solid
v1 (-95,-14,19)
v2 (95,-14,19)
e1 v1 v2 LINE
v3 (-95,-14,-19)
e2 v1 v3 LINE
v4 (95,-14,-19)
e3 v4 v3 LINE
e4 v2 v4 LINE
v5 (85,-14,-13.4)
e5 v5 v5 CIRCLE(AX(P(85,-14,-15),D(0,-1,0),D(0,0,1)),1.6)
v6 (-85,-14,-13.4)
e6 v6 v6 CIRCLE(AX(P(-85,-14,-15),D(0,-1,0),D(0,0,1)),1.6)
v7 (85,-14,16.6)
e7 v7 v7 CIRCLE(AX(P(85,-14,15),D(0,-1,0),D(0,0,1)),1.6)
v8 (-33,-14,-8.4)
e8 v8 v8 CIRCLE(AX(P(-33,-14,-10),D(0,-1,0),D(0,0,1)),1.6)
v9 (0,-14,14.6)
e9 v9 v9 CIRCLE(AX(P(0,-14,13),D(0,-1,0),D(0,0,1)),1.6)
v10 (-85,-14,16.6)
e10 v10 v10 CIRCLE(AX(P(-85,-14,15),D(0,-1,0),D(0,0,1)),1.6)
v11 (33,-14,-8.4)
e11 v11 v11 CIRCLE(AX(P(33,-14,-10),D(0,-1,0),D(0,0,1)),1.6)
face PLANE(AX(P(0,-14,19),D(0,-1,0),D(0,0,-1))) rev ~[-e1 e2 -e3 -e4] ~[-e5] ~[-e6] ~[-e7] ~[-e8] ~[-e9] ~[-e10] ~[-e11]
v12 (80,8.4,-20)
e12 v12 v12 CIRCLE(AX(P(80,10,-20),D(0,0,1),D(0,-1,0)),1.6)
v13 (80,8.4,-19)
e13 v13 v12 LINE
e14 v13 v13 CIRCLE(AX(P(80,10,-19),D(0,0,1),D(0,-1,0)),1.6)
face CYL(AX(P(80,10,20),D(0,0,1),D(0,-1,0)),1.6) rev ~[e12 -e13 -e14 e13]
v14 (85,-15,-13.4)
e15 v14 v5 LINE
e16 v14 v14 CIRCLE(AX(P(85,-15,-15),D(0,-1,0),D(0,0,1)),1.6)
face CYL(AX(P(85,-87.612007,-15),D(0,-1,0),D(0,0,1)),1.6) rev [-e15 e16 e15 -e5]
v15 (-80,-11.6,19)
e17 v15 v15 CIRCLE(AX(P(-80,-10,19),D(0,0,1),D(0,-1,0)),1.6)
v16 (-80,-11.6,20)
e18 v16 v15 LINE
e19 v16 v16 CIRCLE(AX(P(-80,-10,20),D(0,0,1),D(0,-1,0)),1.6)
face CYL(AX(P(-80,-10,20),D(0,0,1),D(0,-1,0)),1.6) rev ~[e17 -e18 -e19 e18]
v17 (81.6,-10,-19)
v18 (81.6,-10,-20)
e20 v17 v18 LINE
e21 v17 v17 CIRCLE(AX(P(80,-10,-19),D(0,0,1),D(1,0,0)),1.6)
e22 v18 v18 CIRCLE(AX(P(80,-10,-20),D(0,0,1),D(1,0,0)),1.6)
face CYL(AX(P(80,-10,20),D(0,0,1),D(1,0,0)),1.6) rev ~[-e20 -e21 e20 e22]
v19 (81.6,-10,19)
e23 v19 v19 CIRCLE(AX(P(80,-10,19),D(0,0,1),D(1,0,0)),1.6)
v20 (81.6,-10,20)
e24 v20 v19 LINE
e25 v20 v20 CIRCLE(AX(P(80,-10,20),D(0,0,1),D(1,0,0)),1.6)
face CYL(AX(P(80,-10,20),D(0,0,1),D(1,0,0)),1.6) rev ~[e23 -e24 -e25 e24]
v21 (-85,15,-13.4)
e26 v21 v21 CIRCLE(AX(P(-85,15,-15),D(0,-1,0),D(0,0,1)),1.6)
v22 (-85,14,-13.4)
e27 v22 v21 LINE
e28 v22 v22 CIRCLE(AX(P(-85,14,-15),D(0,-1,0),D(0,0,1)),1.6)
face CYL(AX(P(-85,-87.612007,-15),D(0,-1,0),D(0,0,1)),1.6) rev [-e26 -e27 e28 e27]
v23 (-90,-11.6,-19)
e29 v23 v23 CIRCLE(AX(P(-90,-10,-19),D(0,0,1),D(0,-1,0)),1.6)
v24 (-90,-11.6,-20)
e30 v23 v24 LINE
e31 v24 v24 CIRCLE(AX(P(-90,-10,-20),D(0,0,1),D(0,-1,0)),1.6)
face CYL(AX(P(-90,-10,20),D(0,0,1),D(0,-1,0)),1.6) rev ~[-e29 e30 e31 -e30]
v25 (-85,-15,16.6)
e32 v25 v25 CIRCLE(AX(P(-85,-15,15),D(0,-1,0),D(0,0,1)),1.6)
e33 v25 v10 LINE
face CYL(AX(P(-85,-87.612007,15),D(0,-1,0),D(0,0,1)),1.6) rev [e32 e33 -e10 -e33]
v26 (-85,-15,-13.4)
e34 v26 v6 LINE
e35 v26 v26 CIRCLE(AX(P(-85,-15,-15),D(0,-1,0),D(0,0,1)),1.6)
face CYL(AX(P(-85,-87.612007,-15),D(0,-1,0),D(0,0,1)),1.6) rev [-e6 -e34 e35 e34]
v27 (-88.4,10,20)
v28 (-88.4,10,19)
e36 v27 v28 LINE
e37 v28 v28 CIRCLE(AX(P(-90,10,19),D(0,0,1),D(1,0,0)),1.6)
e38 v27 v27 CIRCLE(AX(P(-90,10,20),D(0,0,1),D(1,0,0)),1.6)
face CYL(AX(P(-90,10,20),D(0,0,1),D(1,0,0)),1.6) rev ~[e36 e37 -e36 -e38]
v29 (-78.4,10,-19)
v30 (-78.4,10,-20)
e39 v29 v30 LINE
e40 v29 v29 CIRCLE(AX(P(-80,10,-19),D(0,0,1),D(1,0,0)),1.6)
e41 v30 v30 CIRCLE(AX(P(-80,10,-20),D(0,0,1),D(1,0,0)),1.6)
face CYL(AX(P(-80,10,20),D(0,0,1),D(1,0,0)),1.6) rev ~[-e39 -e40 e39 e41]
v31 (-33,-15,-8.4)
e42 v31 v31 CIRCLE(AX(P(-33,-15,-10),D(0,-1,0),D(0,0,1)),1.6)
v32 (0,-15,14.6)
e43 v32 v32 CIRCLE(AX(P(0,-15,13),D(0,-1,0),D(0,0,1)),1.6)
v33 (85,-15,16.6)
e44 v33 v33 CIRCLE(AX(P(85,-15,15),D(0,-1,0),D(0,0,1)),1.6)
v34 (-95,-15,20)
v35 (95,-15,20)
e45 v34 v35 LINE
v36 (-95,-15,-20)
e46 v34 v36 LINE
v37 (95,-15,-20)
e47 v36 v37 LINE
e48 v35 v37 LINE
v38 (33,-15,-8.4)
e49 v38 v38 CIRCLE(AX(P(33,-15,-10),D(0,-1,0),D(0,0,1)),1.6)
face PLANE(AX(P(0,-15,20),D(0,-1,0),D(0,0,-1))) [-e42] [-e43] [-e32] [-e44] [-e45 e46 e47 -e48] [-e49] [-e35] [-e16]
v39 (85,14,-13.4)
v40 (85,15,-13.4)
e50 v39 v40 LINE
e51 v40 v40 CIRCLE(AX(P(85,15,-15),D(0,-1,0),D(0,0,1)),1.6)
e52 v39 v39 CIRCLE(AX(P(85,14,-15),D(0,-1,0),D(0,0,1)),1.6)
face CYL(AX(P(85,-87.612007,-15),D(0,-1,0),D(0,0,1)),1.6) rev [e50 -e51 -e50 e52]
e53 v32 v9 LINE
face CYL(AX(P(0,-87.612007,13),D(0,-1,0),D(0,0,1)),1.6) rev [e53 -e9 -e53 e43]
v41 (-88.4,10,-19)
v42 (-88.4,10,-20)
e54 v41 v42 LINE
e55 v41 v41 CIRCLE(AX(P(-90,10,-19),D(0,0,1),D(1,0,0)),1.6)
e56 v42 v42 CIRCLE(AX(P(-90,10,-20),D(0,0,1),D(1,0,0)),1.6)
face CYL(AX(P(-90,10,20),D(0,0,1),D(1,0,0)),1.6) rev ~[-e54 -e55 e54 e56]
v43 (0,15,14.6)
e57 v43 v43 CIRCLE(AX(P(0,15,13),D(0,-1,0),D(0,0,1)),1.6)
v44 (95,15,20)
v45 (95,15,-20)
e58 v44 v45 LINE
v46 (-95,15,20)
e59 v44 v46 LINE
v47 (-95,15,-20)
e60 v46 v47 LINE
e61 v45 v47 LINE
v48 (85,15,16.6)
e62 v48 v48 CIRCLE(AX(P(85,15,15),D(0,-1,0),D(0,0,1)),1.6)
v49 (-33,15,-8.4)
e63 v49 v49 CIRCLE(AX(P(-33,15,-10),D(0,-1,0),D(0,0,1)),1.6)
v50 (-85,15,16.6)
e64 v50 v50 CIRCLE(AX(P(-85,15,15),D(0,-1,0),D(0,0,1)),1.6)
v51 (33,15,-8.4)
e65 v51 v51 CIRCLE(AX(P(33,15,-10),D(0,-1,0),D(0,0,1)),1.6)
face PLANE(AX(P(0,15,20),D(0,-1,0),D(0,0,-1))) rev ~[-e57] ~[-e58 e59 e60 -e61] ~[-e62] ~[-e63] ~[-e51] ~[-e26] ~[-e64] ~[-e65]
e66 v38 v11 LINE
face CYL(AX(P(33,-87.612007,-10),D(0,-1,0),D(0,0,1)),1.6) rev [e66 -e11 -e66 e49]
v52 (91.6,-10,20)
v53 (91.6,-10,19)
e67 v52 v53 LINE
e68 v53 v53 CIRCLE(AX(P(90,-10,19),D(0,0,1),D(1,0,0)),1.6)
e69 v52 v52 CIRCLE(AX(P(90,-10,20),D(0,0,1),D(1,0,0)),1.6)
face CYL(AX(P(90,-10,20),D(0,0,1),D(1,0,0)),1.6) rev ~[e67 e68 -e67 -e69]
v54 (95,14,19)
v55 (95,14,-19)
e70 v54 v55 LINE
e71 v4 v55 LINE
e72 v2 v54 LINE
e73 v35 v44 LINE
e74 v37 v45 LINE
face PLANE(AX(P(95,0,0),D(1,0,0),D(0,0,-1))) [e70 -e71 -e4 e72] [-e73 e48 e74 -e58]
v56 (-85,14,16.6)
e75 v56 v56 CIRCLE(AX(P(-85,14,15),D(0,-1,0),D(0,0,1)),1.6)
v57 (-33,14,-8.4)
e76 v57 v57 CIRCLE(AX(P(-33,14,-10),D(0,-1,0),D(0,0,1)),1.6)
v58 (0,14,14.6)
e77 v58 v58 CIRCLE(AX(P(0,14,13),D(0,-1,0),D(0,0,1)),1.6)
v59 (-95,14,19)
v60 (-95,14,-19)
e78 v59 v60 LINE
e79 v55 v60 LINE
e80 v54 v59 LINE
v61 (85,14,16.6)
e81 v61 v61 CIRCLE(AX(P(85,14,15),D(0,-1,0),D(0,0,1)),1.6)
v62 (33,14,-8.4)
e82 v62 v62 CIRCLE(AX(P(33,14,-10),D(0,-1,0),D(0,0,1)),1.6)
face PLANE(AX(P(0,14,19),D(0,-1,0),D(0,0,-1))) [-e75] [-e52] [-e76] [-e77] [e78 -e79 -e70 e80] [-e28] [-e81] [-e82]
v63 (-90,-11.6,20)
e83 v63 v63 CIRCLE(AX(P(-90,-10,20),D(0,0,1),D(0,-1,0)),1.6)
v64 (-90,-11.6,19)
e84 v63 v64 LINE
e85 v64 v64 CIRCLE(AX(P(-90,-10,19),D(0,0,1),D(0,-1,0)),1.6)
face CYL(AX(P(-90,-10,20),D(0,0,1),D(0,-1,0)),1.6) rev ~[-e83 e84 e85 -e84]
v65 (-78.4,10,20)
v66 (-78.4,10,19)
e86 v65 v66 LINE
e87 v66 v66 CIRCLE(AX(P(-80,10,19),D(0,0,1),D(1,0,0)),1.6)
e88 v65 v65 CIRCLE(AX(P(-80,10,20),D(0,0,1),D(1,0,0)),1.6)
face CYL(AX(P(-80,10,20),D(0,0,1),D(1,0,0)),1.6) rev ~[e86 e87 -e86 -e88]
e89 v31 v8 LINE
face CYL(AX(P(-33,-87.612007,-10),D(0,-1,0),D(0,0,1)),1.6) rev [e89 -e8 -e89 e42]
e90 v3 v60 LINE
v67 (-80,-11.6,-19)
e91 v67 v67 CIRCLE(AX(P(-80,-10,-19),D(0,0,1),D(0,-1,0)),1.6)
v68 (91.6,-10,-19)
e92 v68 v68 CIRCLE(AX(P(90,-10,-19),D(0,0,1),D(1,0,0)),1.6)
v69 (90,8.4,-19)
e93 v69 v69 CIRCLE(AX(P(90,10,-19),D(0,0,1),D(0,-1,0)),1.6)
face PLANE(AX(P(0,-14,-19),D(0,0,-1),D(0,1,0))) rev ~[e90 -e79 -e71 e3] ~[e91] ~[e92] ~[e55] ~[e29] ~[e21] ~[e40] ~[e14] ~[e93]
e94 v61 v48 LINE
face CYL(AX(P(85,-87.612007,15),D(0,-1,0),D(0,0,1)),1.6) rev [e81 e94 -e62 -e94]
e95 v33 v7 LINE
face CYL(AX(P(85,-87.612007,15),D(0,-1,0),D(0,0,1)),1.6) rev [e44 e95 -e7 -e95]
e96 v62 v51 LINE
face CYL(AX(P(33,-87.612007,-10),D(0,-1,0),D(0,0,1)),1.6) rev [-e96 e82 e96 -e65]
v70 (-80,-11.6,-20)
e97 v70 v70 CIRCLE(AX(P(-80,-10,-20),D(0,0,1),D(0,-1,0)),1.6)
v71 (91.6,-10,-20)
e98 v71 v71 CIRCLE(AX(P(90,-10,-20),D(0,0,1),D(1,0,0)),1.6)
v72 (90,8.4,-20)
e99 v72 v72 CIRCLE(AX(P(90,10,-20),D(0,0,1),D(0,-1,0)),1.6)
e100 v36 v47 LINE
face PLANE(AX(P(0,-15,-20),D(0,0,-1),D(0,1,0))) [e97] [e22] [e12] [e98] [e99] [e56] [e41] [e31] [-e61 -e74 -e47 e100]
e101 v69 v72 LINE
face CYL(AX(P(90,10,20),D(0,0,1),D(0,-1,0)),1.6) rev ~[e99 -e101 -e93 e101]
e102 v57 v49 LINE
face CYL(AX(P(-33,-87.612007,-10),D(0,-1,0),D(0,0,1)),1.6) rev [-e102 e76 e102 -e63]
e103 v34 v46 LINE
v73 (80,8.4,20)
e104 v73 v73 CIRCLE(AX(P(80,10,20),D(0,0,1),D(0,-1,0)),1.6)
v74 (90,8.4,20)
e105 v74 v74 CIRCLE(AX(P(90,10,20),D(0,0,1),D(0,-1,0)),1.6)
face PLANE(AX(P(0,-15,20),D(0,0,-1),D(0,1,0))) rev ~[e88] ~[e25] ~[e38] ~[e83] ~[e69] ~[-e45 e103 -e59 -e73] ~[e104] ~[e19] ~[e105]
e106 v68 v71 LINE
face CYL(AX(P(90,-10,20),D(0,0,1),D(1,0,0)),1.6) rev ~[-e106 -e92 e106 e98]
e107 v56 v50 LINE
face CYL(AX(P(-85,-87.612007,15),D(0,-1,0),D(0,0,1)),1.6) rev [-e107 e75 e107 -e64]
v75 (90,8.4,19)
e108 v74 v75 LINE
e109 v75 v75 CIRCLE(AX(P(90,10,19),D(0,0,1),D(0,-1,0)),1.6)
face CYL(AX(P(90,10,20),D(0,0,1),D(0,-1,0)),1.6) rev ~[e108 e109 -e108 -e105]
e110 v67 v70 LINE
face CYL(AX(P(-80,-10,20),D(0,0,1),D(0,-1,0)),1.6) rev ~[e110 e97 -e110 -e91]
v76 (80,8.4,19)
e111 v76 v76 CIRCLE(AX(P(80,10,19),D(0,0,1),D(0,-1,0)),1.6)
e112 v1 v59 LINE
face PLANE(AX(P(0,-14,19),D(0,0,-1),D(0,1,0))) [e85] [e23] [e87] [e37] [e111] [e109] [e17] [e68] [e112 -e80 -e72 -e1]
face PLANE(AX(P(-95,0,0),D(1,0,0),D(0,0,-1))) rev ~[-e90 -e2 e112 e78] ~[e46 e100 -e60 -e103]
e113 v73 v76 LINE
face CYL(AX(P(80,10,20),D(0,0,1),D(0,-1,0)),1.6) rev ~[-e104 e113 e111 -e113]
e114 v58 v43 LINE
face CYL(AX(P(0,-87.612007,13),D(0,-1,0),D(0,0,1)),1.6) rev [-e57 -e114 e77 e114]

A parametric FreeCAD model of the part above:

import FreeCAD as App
import Part
import Sketcher
from FreeCAD import Vector

doc = App.newDocument("Part")
body = doc.addObject("PartDesign::Body", "Body")

# Sketch on YZ plane
sketch1 = body.newObject("Sketcher::SketchObject", "Sketch")
sketch1.AttachmentSupport = (doc.getObject("YZ_Plane"), [""])
sketch1.MapMode = "FlatFace"
sketch1.addGeometry([
    Part.LineSegment(Vector(15, 20, 0), Vector(-15, 20, 0)),  # 0
    Part.LineSegment(Vector(-15, 20, 0), Vector(-15, -20, 0)),  # 1
    Part.LineSegment(Vector(-15, -20, 0), Vector(15, -20, 0)),  # 2
    Part.LineSegment(Vector(15, -20, 0), Vector(15, 20, 0)),  # 3
    Part.LineSegment(Vector(-14, -19, 0), Vector(-14, 19, 0)),  # 4
    Part.LineSegment(Vector(-14, 19, 0), Vector(14, 19, 0)),  # 5
    Part.LineSegment(Vector(14, 19, 0), Vector(14, -19, 0)),  # 6
    Part.LineSegment(Vector(14, -19, 0), Vector(-14, -19, 0)),  # 7
], False)
sketch1.addConstraint([
    Sketcher.Constraint("Coincident", 0, 2, 1, 1),
    Sketcher.Constraint("Coincident", 1, 2, 2, 1),
    Sketcher.Constraint("Coincident", 2, 2, 3, 1),
    Sketcher.Constraint("Coincident", 3, 2, 0, 1),
    Sketcher.Constraint("Coincident", 4, 2, 5, 1),
    Sketcher.Constraint("Coincident", 5, 2, 6, 1),
    Sketcher.Constraint("Coincident", 6, 2, 7, 1),
    Sketcher.Constraint("Coincident", 7, 2, 4, 1),
    Sketcher.Constraint("Horizontal", 0),
    Sketcher.Constraint("Vertical", 1),
    Sketcher.Constraint("Horizontal", 2),
    Sketcher.Constraint("Vertical", 3),
    Sketcher.Constraint("Vertical", 4),
    Sketcher.Constraint("Horizontal", 5),
    Sketcher.Constraint("Vertical", 6),
    Sketcher.Constraint("Horizontal", 7),
    Sketcher.Constraint("Symmetric", 0, 2, 2, 2, -1, 1),
    Sketcher.Constraint("Symmetric", 4, 2, 6, 2, -1, 1),
    Sketcher.Constraint("DistanceX", 0, 2, 0, 1, 30.0),
    Sketcher.Constraint("DistanceX", 5, 1, 5, 2, 28.0),
    Sketcher.Constraint("DistanceY", 1, 2, 1, 1, 40.0),
    Sketcher.Constraint("DistanceY", 4, 1, 4, 2, 38.0),
])
pad1 = body.newObject("PartDesign::Pad", "Pad")
pad1.Profile = sketch1
pad1.Length = 190
pad1.Midplane = True

# Sketch on XZ plane
sketch2 = body.newObject("Sketcher::SketchObject", "Sketch001")
sketch2.AttachmentSupport = (doc.getObject("XZ_Plane"), [""])
sketch2.MapMode = "FlatFace"
sketch2.AttachmentOffset = App.Placement(Vector(0, 0, -15), App.Rotation())
sketch2.addGeometry([
    Part.Circle(Vector(0, 13, 0), Vector(0, 0, 1), 1.6),  # 0
    Part.Circle(Vector(-33, -10, 0), Vector(0, 0, 1), 1.6),  # 1
    Part.Circle(Vector(33, -10, 0), Vector(0, 0, 1), 1.6),  # 2
    Part.Circle(Vector(-85, -15, 0), Vector(0, 0, 1), 1.6),  # 3
    Part.Circle(Vector(-85, 15, 0), Vector(0, 0, 1), 1.6),  # 4
    Part.Circle(Vector(85, 15, 0), Vector(0, 0, 1), 1.6),  # 5
    Part.Circle(Vector(85, -15, 0), Vector(0, 0, 1), 1.6),  # 6
], False)
sketch2.addConstraint([
    Sketcher.Constraint("Equal", 0, 1),
    Sketcher.Constraint("Equal", 1, 2),
    Sketcher.Constraint("Equal", 2, 3),
    Sketcher.Constraint("Equal", 3, 4),
    Sketcher.Constraint("Equal", 4, 5),
    Sketcher.Constraint("Equal", 5, 6),
    Sketcher.Constraint("Symmetric", 3, 3, 5, 3, -1, 1),
    Sketcher.Constraint("Symmetric", 4, 3, 6, 3, -1, 1),
    Sketcher.Constraint("Symmetric", 1, 3, 2, 3, -2),
    Sketcher.Constraint("Symmetric", 4, 3, 5, 3, -2),
    Sketcher.Constraint("PointOnObject", 0, 3, -2),
    Sketcher.Constraint("Diameter", 0, 3.2),
    Sketcher.Constraint("DistanceY", -1, 1, 0, 3, 13.0),
    Sketcher.Constraint("DistanceX", 1, 3, -1, 1, 33.0),
    Sketcher.Constraint("DistanceY", 1, 3, -1, 1, 10.0),
    Sketcher.Constraint("DistanceX", 3, 3, -1, 1, 85.0),
    Sketcher.Constraint("DistanceY", 3, 3, -1, 1, 15.0),
])
pocket1 = body.newObject("PartDesign::Pocket", "Pocket")
pocket1.Profile = sketch2
pocket1.Type = "ThroughAll"
pocket1.Midplane = True

# Sketch on XY plane
sketch3 = body.newObject("Sketcher::SketchObject", "Sketch002")
sketch3.AttachmentSupport = (doc.getObject("XY_Plane"), [""])
sketch3.MapMode = "FlatFace"
sketch3.AttachmentOffset = App.Placement(Vector(0, 0, 20), App.Rotation())
sketch3.addGeometry([
    Part.Circle(Vector(-90, 10, 0), Vector(0, 0, 1), 1.6),  # 0
    Part.Circle(Vector(-90, -10, 0), Vector(0, 0, 1), 1.6),  # 1
    Part.Circle(Vector(-80, 10, 0), Vector(0, 0, 1), 1.6),  # 2
    Part.Circle(Vector(-80, -10, 0), Vector(0, 0, 1), 1.6),  # 3
    Part.Circle(Vector(80, -10, 0), Vector(0, 0, 1), 1.6),  # 4
    Part.Circle(Vector(80, 10, 0), Vector(0, 0, 1), 1.6),  # 5
    Part.Circle(Vector(90, -10, 0), Vector(0, 0, 1), 1.6),  # 6
    Part.Circle(Vector(90, 10, 0), Vector(0, 0, 1), 1.6),  # 7
], False)
sketch3.addConstraint([
    Sketcher.Constraint("Equal", 0, 1),
    Sketcher.Constraint("Equal", 1, 2),
    Sketcher.Constraint("Equal", 2, 3),
    Sketcher.Constraint("Equal", 3, 4),
    Sketcher.Constraint("Equal", 4, 5),
    Sketcher.Constraint("Equal", 5, 6),
    Sketcher.Constraint("Equal", 6, 7),
    Sketcher.Constraint("Symmetric", 2, 3, 4, 3, -1, 1),
    Sketcher.Constraint("Symmetric", 3, 3, 5, 3, -1, 1),
    Sketcher.Constraint("Symmetric", 0, 3, 6, 3, -1, 1),
    Sketcher.Constraint("Symmetric", 1, 3, 7, 3, -1, 1),
    Sketcher.Constraint("Symmetric", 3, 3, 4, 3, -2),
    Sketcher.Constraint("Symmetric", 1, 3, 6, 3, -2),
    Sketcher.Constraint("Horizontal", 0, 3, 2, 3),
    Sketcher.Constraint("Diameter", 0, 3.2),
    Sketcher.Constraint("DistanceX", 0, 3, -1, 1, 90.0),
    Sketcher.Constraint("DistanceY", -1, 1, 0, 3, 10.0),
    Sketcher.Constraint("DistanceX", 2, 3, -1, 1, 80.0),
])
pocket2 = body.newObject("PartDesign::Pocket", "Pocket001")
pocket2.Profile = sketch3
pocket2.Type = "ThroughAll"

doc.recompute()
